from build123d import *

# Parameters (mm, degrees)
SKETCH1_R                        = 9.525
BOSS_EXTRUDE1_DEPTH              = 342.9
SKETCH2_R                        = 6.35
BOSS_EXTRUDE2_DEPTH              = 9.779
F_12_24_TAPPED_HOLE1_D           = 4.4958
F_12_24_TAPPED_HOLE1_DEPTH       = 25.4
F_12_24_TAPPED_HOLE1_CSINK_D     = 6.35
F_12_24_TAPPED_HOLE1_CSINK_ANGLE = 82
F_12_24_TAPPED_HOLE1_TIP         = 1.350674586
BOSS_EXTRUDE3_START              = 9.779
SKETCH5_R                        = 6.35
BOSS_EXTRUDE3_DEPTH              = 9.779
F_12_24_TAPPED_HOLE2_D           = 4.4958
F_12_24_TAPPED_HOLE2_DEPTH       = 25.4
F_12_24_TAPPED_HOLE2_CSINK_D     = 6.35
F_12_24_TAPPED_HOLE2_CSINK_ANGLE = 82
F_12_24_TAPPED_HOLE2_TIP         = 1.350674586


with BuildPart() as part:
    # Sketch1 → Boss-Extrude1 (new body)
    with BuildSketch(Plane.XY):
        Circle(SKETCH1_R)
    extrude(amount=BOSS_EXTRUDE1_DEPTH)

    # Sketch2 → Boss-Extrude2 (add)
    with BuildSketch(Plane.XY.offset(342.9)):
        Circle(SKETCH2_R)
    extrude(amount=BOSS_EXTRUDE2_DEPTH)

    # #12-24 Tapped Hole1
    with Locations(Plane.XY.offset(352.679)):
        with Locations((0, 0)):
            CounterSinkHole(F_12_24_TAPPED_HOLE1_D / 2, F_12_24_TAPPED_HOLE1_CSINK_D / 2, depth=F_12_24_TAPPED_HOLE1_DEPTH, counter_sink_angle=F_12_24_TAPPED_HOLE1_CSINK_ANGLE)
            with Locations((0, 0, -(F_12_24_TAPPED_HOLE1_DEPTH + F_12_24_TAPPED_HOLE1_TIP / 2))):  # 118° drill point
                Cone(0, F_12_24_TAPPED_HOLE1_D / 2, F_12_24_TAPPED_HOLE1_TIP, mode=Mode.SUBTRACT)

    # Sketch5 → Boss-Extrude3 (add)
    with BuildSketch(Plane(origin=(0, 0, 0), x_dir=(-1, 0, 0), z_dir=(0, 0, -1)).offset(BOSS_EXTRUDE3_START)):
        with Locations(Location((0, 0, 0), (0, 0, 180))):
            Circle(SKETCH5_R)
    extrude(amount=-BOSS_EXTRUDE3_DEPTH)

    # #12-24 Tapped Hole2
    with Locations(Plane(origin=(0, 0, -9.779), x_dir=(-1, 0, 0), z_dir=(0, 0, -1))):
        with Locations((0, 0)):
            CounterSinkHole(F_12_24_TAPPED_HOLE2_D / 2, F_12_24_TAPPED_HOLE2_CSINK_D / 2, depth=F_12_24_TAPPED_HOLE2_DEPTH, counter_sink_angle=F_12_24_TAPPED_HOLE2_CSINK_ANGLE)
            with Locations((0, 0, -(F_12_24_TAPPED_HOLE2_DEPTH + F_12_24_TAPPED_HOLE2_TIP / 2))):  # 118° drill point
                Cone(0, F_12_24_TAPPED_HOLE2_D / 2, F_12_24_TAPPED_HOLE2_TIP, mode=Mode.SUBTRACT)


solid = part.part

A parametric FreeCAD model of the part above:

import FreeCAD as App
import Part
import Sketcher
Q = App.Units.Quantity

doc = App.newDocument("Part")
params = doc.addObject("Spreadsheet::Sheet", "Params")
for row, (alias, value) in enumerate([
    ("sketch1_diameter", "0.75 in"),
    ("pad1_length", "13.5 in"),
    ("sketch2_diameter", "0.5 in"),
    ("pad2_length", "0.385 in"),
    ("sketch3_diameter", "0.177 in"),
    ("hole_diameter", "0.177 in"),
    ("hole_depth", "1 in"),
    ("hole_csink_diameter", "0.25 in"),
    ("sketch4_diameter", "0.5 in"),
    ("pad3_length", "0.385 in"),
    ("sketch5_diameter", "0.177 in"),
    ("hole2_diameter", "0.177 in"),
    ("hole2_depth", "1 in"),
    ("hole2_csink_diameter", "0.25 in"),
], start=1):
    params.set(f"A{row}", alias)
    params.set(f"B{row}", "=" + value)
    params.setAlias(f"B{row}", alias)

body = doc.addObject("PartDesign::Body", "Body")

sketch1 = body.newObject("Sketcher::SketchObject", "Sketch")
sketch1.AttachmentSupport = (doc.getObject("XY_Plane"), [""])
sketch1.MapMode = "FlatFace"
sketch1.addGeometry(Part.Circle(App.Vector(0, 0, 0), App.Vector(0, 0, 1), 10), False)
sketch1.addConstraint(Sketcher.Constraint("Coincident", 0, 3, -1, 1))
sketch1.addConstraint(Sketcher.Constraint("Diameter", 0, Q("0.75 in")))
sketch1.setExpression("Constraints[1]", "Params.sketch1_diameter")
pad1 = body.newObject("PartDesign::Pad", "Pad")
pad1.Profile = sketch1
pad1.setExpression("Length", "Params.pad1_length")

sketch2 = body.newObject("Sketcher::SketchObject", "Sketch001")
sketch2.AttachmentSupport = (doc.getObject("XY_Plane"), [""])
sketch2.MapMode = "FlatFace"
sketch2.AttachmentOffset = App.Placement(App.Vector(0, 0, 13.5 * 25.4), App.Rotation())
sketch2.addGeometry(Part.Circle(App.Vector(0, 0, 0), App.Vector(0, 0, 1), 6), False)
sketch2.addConstraint(Sketcher.Constraint("Coincident", 0, 3, -1, 1))
sketch2.addConstraint(Sketcher.Constraint("Diameter", 0, Q("0.5 in")))
sketch2.setExpression("Constraints[1]", "Params.sketch2_diameter")
pad2 = body.newObject("PartDesign::Pad", "Pad001")
pad2.Profile = sketch2
pad2.setExpression("Length", "Params.pad2_length")

sketch3 = body.newObject("Sketcher::SketchObject", "Sketch002")
sketch3.AttachmentSupport = (doc.getObject("XY_Plane"), [""])
sketch3.MapMode = "FlatFace"
sketch3.AttachmentOffset = App.Placement(App.Vector(0, 0, 13.885 * 25.4), App.Rotation())
sketch3.addGeometry(Part.Circle(App.Vector(0, 0, 0), App.Vector(0, 0, 1), 2.2), False)
sketch3.addConstraint(Sketcher.Constraint("Coincident", 0, 3, -1, 1))
sketch3.addConstraint(Sketcher.Constraint("Diameter", 0, Q("0.177 in")))
sketch3.setExpression("Constraints[1]", "Params.sketch3_diameter")
doc.recompute()
hole = body.newObject("PartDesign::Hole", "Hole")
hole.Profile = sketch3
hole.ThreadType = "None"
hole.setExpression("Diameter", "Params.hole_diameter")
hole.DepthType = "Dimension"
hole.setExpression("Depth", "Params.hole_depth")
hole.DrillPoint = "Angled"
hole.DrillPointAngle = 118
hole.HoleCutType = "Countersink"
hole.setExpression("HoleCutDiameter", "Params.hole_csink_diameter")
hole.HoleCutCountersinkAngle = 82

sketch4 = body.newObject("Sketcher::SketchObject", "Sketch003")
sketch4.AttachmentSupport = (doc.getObject("XY_Plane"), [""])
sketch4.MapMode = "FlatFace"
sketch4.AttachmentOffset = App.Placement(App.Vector(0, 0, -0.385 * 25.4), App.Rotation())
sketch4.addGeometry(Part.Circle(App.Vector(0, 0, 0), App.Vector(0, 0, 1), 6), False)
sketch4.addConstraint(Sketcher.Constraint("Coincident", 0, 3, -1, 1))
sketch4.addConstraint(Sketcher.Constraint("Diameter", 0, Q("0.5 in")))
sketch4.setExpression("Constraints[1]", "Params.sketch4_diameter")
pad3 = body.newObject("PartDesign::Pad", "Pad002")
pad3.Profile = sketch4
pad3.setExpression("Length", "Params.pad3_length")

sketch5 = body.newObject("Sketcher::SketchObject", "Sketch004")
sketch5.AttachmentSupport = (doc.getObject("XY_Plane"), [""])
sketch5.MapMode = "FlatFace"
sketch5.AttachmentOffset = App.Placement(App.Vector(0, 0, -0.385 * 25.4), App.Rotation())
sketch5.addGeometry(Part.Circle(App.Vector(0, 0, 0), App.Vector(0, 0, 1), 2.2), False)
sketch5.addConstraint(Sketcher.Constraint("Coincident", 0, 3, -1, 1))
sketch5.addConstraint(Sketcher.Constraint("Diameter", 0, Q("0.177 in")))
sketch5.setExpression("Constraints[1]", "Params.sketch5_diameter")
doc.recompute()
hole2 = body.newObject("PartDesign::Hole", "Hole001")
hole2.Profile = sketch5
hole2.ThreadType = "None"
hole2.setExpression("Diameter", "Params.hole2_diameter")
hole2.DepthType = "Dimension"
hole2.setExpression("Depth", "Params.hole2_depth")
hole2.DrillPoint = "Angled"
hole2.DrillPointAngle = 118
hole2.HoleCutType = "Countersink"
hole2.setExpression("HoleCutDiameter", "Params.hole2_csink_diameter")
hole2.HoleCutCountersinkAngle = 82
hole2.Reversed = True

doc.recompute()
